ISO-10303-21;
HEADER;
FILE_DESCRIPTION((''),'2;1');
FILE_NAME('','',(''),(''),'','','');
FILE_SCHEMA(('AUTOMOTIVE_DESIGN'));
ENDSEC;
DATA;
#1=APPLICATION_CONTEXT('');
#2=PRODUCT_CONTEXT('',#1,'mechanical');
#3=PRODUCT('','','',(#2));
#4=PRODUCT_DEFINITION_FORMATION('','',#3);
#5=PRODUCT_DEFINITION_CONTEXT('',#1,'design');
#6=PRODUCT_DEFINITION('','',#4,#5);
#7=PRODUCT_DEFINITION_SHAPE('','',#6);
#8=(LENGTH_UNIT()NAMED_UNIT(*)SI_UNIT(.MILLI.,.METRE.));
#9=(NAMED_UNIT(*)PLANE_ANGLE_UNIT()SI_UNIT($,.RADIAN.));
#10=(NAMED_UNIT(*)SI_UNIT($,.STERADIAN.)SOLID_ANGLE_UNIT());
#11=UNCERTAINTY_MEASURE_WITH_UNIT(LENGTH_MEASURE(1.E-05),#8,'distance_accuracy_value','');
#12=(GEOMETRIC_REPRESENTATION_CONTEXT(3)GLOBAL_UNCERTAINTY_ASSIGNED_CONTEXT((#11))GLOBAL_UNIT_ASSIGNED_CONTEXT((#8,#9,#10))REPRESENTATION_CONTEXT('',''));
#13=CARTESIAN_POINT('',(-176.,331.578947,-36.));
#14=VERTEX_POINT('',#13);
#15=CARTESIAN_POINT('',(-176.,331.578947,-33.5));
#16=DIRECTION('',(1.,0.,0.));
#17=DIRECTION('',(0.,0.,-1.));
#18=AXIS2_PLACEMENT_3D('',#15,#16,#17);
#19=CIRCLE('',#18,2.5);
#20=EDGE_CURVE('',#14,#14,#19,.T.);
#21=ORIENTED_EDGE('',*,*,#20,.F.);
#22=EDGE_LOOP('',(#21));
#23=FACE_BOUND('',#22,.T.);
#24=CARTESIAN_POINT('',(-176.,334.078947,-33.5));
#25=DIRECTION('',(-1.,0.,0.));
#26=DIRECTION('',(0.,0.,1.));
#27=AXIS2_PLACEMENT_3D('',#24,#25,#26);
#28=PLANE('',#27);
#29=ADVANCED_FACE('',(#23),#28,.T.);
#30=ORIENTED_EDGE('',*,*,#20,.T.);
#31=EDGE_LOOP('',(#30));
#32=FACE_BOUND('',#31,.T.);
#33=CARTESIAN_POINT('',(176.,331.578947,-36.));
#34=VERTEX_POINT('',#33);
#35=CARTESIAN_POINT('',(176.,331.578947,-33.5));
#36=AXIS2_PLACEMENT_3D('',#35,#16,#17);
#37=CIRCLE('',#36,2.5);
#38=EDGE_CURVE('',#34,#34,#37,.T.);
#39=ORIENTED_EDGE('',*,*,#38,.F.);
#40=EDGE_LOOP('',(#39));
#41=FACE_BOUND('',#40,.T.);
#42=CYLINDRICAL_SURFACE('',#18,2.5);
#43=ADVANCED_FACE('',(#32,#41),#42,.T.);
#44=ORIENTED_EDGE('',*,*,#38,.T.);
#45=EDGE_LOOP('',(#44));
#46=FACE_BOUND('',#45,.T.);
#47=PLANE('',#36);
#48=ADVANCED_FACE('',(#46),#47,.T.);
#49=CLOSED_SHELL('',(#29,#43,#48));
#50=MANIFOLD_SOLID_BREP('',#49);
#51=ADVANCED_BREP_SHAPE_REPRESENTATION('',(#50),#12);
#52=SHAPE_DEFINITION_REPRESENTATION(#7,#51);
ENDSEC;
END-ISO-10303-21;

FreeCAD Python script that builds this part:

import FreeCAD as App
import Part
import Sketcher
from FreeCAD import Vector
Q = App.Units.Quantity


def add_polygon(sketch, points):
    """Adds a closed chain of lines whose ends are joined by coincident constraints."""
    first, n = sketch.GeometryCount, len(points)
    for a, b in zip(points, points[1:] + points[:1]):
        sketch.addGeometry(Part.LineSegment(App.Vector(*a, 0), App.Vector(*b, 0)), False)
    for i in range(n):
        sketch.addConstraint(Sketcher.Constraint("Coincident", first + i, 2, first + (i + 1) % n, 1))

doc = App.newDocument("Part")
params = doc.addObject("Spreadsheet::Sheet", "Params")
for row, (alias, value) in enumerate([
    ("sketch1_width", "352 mm"),
    ("sketch1_height", "2.5 mm"),
    ("revolution_angle", "360 deg"),
], start=1):
    params.set(f"A{row}", alias)
    params.set(f"B{row}", "=" + value)
    params.setAlias(f"B{row}", alias)

body = doc.addObject("PartDesign::Body", "Body")

sketch1 = body.newObject("Sketcher::SketchObject", "Sketch")
sketch1.AttachmentSupport = (doc.getObject("XY_Plane"), [""])
sketch1.MapMode = "FlatFace"
sketch1.AttachmentOffset = App.Placement(Vector(0, 0, -33.5), App.Rotation())
add_polygon(sketch1, [(-176, 334.1), (-176, 331.6), (176, 331.6), (176, 334.1)])
sketch1.addGeometry(Part.LineSegment(Vector(-176, 331.6, 0), Vector(176, 331.6, 0)), True)
sketch1.addConstraint([
    Sketcher.Constraint("Vertical", 0),
    Sketcher.Constraint("Horizontal", 1),
    Sketcher.Constraint("Vertical", 2),
    Sketcher.Constraint("Horizontal", 3),
    Sketcher.Constraint("Horizontal", 4),
    Sketcher.Constraint("Coincident", 4, 1, 0, 2),
    Sketcher.Constraint("Vertical", 2, 2, 4, 2),
    Sketcher.Constraint("DistanceX", 1, 1, 1, 2, Q("352 mm")),
    Sketcher.Constraint("DistanceY", 0, 2, 0, 1, Q("2.5 mm")),
    Sketcher.Constraint("DistanceX", 0, 2, -1, 1, Q("176 mm")),
    Sketcher.Constraint("DistanceY", -1, 1, 0, 2, Q("331.578947 mm")),
])
sketch1.setExpression("Constraints[11]", "Params.sketch1_width")
sketch1.setExpression("Constraints[12]", "Params.sketch1_height")
revolution = body.newObject("PartDesign::Revolution", "Revolution")
revolution.Profile = sketch1
revolution.ReferenceAxis = (sketch1, ["Axis0"])
revolution.setExpression("Angle", "Params.revolution_angle")

doc.recompute()
